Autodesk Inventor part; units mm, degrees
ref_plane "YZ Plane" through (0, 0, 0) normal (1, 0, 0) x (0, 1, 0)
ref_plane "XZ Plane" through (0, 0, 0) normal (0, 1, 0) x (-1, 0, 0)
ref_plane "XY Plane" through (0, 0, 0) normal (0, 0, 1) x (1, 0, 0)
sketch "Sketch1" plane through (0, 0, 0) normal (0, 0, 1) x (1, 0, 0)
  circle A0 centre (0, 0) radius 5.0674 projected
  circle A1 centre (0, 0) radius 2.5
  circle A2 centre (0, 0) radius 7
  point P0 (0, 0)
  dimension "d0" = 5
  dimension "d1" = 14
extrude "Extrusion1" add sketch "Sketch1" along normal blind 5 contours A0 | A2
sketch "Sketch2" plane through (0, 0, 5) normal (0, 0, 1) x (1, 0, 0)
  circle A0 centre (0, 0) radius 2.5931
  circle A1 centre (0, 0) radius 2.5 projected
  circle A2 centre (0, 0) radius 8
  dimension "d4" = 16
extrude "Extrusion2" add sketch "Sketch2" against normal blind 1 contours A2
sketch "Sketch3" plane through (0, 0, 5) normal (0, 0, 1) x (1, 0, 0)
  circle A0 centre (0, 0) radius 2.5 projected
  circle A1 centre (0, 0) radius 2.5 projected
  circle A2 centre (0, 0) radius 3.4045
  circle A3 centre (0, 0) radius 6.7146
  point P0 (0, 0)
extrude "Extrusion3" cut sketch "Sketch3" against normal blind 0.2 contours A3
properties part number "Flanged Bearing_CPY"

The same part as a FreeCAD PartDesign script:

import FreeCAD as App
import Part
import Sketcher
Q = App.Units.Quantity

doc = App.newDocument("Part")
body = doc.addObject("PartDesign::Body", "Body")

# Sketch on XY plane
sketch1 = body.newObject("Sketcher::SketchObject", "Sketch")
sketch1.AttachmentSupport = (doc.getObject("XY_Plane"), [""])
sketch1.MapMode = "FlatFace"
sketch1.addGeometry([
    Part.Circle(App.Vector(0, 0, 0), App.Vector(0, 0, 1), 7),
    Part.Circle(App.Vector(0, 0, 0), App.Vector(0, 0, 1), 2.5),
], False)
sketch1.addConstraint([
    Sketcher.Constraint("Coincident", 0, 3, -1, 1),
    Sketcher.Constraint("Coincident", 1, 3, -1, 1),
    Sketcher.Constraint("Diameter", 0, Q("14 mm")),
    Sketcher.Constraint("Diameter", 1, Q("5 mm")),
])
pad1 = body.newObject("PartDesign::Pad", "Pad")
pad1.Profile = sketch1
pad1.Length = 5

# Sketch on XY plane
sketch2 = body.newObject("Sketcher::SketchObject", "Sketch001")
sketch2.AttachmentSupport = (doc.getObject("XY_Plane"), [""])
sketch2.MapMode = "FlatFace"
sketch2.AttachmentOffset = App.Placement(App.Vector(0, 0, 5), App.Rotation())
sketch2.addGeometry([
    Part.Circle(App.Vector(0, 0, 0), App.Vector(0, 0, 1), 8),
    Part.Circle(App.Vector(0, 0, 0), App.Vector(0, 0, 1), 2.6),
], False)
sketch2.addConstraint([
    Sketcher.Constraint("Coincident", 0, 3, -1, 1),
    Sketcher.Constraint("Coincident", 1, 3, -1, 1),
    Sketcher.Constraint("Diameter", 0, Q("16 mm")),
    Sketcher.Constraint("Diameter", 1, Q("5.1862 mm")),
])
pad2 = body.newObject("PartDesign::Pad", "Pad001")
pad2.Profile = sketch2
pad2.Length = 1
pad2.Reversed = True

# Sketch on XY plane
sketch3 = body.newObject("Sketcher::SketchObject", "Sketch002")
sketch3.AttachmentSupport = (doc.getObject("XY_Plane"), [""])
sketch3.MapMode = "FlatFace"
sketch3.AttachmentOffset = App.Placement(App.Vector(0, 0, 5), App.Rotation())
sketch3.addGeometry([
    Part.Circle(App.Vector(0, 0, 0), App.Vector(0, 0, 1), 6.7),
    Part.Circle(App.Vector(0, 0, 0), App.Vector(0, 0, 1), 3.4),
], False)
sketch3.addConstraint([
    Sketcher.Constraint("Coincident", 0, 3, -1, 1),
    Sketcher.Constraint("Coincident", 1, 3, -1, 1),
    Sketcher.Constraint("Diameter", 1, Q("6.809 mm")),
    Sketcher.Constraint("Diameter", 0, Q("13.4292 mm")),
])
pocket1 = body.newObject("PartDesign::Pocket", "Pocket")
pocket1.Profile = sketch3
pocket1.Length = 0.2

doc.recompute()
